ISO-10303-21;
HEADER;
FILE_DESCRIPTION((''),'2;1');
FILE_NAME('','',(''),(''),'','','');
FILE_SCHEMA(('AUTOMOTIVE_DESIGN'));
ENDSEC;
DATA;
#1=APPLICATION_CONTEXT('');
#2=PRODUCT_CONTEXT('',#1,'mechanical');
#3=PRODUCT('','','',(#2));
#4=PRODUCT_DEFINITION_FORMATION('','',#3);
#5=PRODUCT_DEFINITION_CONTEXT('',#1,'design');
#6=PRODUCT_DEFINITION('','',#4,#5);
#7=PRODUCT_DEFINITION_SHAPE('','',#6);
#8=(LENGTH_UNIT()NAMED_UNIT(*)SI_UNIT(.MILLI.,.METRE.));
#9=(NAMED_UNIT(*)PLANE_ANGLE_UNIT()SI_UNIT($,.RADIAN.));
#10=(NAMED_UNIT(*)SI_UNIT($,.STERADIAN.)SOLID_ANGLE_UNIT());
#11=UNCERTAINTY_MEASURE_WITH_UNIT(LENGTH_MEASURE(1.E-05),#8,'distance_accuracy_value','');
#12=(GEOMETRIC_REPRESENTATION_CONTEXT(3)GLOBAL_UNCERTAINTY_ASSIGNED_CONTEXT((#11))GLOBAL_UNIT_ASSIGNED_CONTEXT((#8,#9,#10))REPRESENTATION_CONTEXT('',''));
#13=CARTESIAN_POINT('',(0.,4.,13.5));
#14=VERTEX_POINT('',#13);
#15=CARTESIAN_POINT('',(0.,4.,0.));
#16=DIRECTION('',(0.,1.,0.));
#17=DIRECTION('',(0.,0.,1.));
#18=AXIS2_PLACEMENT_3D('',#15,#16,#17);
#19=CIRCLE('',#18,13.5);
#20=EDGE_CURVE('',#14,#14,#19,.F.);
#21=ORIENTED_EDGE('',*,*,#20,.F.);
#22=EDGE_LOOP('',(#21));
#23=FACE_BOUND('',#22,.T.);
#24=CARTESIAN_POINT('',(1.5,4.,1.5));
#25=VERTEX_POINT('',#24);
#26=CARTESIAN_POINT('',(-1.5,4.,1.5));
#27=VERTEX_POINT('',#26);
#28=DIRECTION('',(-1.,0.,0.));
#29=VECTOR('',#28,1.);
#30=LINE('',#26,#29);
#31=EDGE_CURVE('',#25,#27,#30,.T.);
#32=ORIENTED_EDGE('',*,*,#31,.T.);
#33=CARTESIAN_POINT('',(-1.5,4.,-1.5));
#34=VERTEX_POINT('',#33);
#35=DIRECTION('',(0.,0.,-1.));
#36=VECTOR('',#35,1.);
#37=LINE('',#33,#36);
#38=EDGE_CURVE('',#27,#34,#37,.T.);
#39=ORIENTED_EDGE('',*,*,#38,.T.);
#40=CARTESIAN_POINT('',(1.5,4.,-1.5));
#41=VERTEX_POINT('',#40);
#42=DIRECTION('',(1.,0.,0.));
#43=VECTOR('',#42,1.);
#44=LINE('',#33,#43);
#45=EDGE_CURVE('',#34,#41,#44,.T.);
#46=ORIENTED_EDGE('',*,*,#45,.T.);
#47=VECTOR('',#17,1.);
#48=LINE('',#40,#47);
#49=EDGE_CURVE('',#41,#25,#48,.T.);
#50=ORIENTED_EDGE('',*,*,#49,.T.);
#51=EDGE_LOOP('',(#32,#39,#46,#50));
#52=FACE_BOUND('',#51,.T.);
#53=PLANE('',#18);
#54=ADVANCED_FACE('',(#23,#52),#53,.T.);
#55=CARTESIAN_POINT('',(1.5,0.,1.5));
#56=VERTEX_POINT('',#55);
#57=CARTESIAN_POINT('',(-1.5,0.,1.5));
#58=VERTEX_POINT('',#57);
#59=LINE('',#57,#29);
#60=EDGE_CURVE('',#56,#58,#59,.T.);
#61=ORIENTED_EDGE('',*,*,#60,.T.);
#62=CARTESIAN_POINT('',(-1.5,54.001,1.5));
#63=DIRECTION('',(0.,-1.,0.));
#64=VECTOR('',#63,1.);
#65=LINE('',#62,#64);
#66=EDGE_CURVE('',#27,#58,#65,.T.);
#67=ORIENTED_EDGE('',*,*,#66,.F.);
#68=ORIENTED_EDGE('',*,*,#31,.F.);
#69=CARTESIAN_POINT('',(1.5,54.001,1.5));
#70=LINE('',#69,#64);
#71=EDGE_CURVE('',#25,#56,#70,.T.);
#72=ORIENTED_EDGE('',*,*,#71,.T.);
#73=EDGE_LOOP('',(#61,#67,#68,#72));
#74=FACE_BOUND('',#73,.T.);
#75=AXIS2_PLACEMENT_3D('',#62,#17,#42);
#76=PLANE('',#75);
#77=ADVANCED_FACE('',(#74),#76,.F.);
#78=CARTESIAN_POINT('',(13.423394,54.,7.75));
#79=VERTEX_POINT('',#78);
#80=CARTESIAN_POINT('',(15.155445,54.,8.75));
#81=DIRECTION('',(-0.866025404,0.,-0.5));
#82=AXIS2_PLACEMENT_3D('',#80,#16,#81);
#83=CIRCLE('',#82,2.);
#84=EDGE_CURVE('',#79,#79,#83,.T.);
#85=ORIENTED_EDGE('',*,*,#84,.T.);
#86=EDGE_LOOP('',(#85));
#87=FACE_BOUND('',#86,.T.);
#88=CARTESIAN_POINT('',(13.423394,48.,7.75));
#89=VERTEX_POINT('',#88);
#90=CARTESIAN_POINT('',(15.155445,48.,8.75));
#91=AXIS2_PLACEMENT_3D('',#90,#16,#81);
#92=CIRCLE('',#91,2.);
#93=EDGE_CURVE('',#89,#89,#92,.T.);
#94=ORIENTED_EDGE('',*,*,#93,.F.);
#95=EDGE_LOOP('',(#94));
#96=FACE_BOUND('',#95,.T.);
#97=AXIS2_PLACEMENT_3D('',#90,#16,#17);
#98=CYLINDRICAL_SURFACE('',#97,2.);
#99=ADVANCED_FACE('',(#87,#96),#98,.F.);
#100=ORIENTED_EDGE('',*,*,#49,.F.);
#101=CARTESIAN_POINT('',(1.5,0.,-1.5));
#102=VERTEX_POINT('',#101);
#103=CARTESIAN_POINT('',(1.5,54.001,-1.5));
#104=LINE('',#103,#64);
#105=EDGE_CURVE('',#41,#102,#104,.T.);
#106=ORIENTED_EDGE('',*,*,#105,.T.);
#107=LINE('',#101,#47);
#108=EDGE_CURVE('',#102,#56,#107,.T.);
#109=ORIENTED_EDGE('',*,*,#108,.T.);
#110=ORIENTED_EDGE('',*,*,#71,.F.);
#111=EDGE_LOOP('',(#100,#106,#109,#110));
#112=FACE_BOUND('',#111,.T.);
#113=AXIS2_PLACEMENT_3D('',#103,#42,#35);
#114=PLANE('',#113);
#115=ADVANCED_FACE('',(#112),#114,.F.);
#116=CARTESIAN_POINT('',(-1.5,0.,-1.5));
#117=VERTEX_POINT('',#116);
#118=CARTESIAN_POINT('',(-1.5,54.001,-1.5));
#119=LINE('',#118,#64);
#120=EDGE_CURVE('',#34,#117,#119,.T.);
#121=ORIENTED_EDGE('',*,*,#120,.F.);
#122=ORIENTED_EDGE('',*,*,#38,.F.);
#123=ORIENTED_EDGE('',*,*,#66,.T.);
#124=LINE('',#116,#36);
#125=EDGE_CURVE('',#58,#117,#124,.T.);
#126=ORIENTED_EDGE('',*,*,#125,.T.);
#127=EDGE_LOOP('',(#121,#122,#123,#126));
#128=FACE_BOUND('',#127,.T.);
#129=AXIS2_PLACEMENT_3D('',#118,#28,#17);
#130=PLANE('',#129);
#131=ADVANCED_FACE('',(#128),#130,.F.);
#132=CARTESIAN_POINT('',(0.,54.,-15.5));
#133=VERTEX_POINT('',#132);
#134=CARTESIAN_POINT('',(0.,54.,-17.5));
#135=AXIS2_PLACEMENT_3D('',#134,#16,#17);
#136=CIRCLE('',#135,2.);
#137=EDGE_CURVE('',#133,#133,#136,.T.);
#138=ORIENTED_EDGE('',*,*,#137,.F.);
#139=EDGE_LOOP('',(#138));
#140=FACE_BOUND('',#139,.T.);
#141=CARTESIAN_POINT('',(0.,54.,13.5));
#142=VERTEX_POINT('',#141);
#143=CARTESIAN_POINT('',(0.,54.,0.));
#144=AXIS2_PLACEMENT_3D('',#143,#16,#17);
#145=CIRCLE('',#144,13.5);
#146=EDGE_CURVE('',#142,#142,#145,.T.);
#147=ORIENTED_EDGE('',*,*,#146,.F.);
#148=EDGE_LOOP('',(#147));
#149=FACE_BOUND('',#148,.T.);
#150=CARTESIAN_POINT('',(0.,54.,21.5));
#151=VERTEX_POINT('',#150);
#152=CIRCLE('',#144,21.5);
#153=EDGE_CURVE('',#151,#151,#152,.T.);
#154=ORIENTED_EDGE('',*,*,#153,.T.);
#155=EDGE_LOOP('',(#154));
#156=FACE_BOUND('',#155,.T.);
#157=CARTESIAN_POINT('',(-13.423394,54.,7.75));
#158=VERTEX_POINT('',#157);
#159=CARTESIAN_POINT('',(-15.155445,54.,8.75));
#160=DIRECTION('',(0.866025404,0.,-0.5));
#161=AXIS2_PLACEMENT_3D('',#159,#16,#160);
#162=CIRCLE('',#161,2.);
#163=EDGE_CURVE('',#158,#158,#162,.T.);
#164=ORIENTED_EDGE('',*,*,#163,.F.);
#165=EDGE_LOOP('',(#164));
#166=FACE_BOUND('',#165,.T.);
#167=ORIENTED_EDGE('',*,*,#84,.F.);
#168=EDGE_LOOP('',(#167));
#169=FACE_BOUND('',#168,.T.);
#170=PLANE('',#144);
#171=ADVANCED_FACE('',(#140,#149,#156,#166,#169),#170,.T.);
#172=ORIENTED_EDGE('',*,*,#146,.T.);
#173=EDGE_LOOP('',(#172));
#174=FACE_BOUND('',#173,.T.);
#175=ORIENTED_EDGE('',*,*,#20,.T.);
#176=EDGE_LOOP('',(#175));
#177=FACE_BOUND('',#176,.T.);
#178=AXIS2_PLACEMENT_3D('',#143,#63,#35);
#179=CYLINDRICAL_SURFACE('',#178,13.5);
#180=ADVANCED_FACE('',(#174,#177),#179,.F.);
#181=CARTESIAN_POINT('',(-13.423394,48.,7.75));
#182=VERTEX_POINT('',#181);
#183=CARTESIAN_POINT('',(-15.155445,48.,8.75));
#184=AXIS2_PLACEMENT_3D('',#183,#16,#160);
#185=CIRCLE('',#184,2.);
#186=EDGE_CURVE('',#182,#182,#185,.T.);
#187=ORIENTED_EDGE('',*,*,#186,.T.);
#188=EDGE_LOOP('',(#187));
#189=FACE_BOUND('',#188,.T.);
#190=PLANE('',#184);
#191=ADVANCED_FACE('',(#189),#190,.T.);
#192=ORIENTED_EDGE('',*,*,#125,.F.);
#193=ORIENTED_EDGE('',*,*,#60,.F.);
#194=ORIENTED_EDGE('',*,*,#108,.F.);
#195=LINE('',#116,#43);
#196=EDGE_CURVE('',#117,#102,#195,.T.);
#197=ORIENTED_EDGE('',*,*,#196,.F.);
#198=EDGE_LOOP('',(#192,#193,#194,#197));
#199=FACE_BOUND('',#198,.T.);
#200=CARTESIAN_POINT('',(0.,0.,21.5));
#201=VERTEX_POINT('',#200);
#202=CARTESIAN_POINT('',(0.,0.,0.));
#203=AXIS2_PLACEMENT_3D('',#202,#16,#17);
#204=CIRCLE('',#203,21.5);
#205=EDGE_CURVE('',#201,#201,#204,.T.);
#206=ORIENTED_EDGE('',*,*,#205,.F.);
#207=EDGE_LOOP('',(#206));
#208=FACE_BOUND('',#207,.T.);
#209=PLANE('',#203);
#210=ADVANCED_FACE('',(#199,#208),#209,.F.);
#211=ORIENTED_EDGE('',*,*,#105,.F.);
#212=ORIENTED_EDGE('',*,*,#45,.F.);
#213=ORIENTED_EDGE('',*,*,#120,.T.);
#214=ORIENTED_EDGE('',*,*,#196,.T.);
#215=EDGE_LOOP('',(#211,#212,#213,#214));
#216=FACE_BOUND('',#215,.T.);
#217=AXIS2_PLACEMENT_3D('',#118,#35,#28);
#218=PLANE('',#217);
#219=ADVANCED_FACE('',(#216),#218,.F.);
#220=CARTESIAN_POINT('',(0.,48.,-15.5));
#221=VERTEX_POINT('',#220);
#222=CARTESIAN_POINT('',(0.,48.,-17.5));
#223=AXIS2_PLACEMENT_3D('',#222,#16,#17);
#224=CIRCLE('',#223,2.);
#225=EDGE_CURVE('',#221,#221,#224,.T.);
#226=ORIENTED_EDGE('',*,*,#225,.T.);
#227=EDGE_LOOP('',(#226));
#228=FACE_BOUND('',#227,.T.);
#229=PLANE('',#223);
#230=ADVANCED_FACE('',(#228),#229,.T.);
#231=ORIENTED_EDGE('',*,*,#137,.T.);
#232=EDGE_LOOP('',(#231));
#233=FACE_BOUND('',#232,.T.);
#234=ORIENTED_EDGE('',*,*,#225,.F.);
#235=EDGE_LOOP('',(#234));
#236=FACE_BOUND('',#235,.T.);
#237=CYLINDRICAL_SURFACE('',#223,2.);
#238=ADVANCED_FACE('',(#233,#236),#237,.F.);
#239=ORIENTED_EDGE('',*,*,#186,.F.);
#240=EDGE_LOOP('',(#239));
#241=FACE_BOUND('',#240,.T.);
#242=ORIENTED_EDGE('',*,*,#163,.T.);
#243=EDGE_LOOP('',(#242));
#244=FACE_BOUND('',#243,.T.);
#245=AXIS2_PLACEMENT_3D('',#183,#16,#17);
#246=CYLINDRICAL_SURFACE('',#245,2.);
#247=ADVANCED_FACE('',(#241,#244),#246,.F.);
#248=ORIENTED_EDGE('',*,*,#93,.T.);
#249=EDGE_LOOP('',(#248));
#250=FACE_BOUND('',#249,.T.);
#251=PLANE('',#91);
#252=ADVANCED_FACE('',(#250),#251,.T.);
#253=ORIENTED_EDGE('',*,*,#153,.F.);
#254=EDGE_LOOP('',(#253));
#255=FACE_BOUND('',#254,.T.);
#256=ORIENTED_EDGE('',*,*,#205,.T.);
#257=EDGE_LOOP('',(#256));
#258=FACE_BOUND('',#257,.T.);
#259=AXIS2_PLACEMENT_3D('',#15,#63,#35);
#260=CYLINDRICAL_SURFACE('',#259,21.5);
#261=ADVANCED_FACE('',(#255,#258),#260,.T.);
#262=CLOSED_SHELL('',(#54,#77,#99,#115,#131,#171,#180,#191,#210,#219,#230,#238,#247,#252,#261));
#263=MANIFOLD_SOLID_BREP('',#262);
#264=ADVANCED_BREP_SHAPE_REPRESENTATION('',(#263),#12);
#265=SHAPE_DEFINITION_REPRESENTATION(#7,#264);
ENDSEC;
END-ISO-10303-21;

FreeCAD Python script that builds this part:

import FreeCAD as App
import Part
import Sketcher

V = App.Vector


def add_polygon(sketch, points):
    """Adds a closed chain of lines whose ends are joined by coincident constraints."""
    first, n = sketch.GeometryCount, len(points)
    for a, b in zip(points, points[1:] + points[:1]):
        sketch.addGeometry(Part.LineSegment(App.Vector(*a, 0), App.Vector(*b, 0)), False)
    for i in range(n):
        sketch.addConstraint(Sketcher.Constraint("Coincident", first + i, 2, first + (i + 1) % n, 1))

doc = App.newDocument("Part")
body = doc.addObject("PartDesign::Body", "Body")

# Sketch on XZ plane
sketch1 = body.newObject("Sketcher::SketchObject", "Sketch")
sketch1.AttachmentSupport = (doc.getObject("XZ_Plane"), [""])
sketch1.MapMode = "FlatFace"
sketch1.addGeometry(Part.Circle(V(0, 0, 0), V(0, 0, 1), 22), False)
sketch1.addConstraint([
    Sketcher.Constraint("Coincident", 0, 3, -1, 1),
    Sketcher.Constraint("Diameter", 0, 43.0),
])
pad1 = body.newObject("PartDesign::Pad", "Pad")
pad1.Profile = sketch1
pad1.Length = 4
pad1.Reversed = True

# Sketch on XZ plane
sketch2 = body.newObject("Sketcher::SketchObject", "Sketch001")
sketch2.AttachmentSupport = (doc.getObject("XZ_Plane"), [""])
sketch2.MapMode = "FlatFace"
sketch2.AttachmentOffset = App.Placement(V(0, 0, -4), App.Rotation())
sketch2.addGeometry([
    Part.Circle(V(0, 0, 0), V(0, 0, 1), 22),
    Part.Circle(V(0, 0, 0), V(0, 0, 1), 14),
], False)
sketch2.addConstraint([
    Sketcher.Constraint("Coincident", 0, 3, -1, 1),
    Sketcher.Constraint("Coincident", 1, 3, -1, 1),
    Sketcher.Constraint("Diameter", 0, 43.0),
    Sketcher.Constraint("Diameter", 1, 27.0),
])
pad2 = body.newObject("PartDesign::Pad", "Pad001")
pad2.Profile = sketch2
pad2.Length = 50
pad2.Reversed = True

# Sketch on XZ plane
sketch3 = body.newObject("Sketcher::SketchObject", "Sketch002")
sketch3.AttachmentSupport = (doc.getObject("XZ_Plane"), [""])
sketch3.MapMode = "FlatFace"
sketch3.AttachmentOffset = App.Placement(V(0, 0, -54), App.Rotation())
sketch3.addGeometry(Part.Circle(V(0, -17.5, 0), V(0, 0, 1), 2), False)
sketch3.addConstraint([
    Sketcher.Constraint("PointOnObject", 0, 3, -2),
    Sketcher.Constraint("Diameter", 0, 4.0),
    Sketcher.Constraint("DistanceY", 0, 3, -1, 1, 17.5),
])
pocket1 = body.newObject("PartDesign::Pocket", "Pocket")
pocket1.Profile = sketch3
pocket1.Length = 6
pocket1.Reversed = True
doc.recompute()

polarpattern = body.newObject("PartDesign::PolarPattern", "PolarPattern")
polarpattern.Originals = [pocket1]
polarpattern.Axis = (doc.getObject("Y_Axis"), [""])
polarpattern.Angle = 360
polarpattern.Occurrences = 3
body.Tip = polarpattern

# Sketch on XZ plane
sketch4 = body.newObject("Sketcher::SketchObject", "Sketch003")
sketch4.AttachmentSupport = (doc.getObject("XZ_Plane"), [""])
sketch4.MapMode = "FlatFace"
add_polygon(sketch4, [(-1.5, 1.5), (-1.5, -1.5), (1.5, -1.5), (1.5, 1.5)])  # lines 0-3
sketch4.addConstraint([
    Sketcher.Constraint("Vertical", 0),
    Sketcher.Constraint("Horizontal", 1),
    Sketcher.Constraint("Vertical", 2),
    Sketcher.Constraint("Horizontal", 3),
    Sketcher.Constraint("Symmetric", 0, 2, 2, 2, -1, 1),
    Sketcher.Constraint("Equal", 3, 0),
    Sketcher.Constraint("DistanceX", 1, 1, 1, 2, 3.0),
])
pocket2 = body.newObject("PartDesign::Pocket", "Pocket001")
pocket2.Profile = sketch4
pocket2.Type = "UpToFirst"

doc.recompute()
